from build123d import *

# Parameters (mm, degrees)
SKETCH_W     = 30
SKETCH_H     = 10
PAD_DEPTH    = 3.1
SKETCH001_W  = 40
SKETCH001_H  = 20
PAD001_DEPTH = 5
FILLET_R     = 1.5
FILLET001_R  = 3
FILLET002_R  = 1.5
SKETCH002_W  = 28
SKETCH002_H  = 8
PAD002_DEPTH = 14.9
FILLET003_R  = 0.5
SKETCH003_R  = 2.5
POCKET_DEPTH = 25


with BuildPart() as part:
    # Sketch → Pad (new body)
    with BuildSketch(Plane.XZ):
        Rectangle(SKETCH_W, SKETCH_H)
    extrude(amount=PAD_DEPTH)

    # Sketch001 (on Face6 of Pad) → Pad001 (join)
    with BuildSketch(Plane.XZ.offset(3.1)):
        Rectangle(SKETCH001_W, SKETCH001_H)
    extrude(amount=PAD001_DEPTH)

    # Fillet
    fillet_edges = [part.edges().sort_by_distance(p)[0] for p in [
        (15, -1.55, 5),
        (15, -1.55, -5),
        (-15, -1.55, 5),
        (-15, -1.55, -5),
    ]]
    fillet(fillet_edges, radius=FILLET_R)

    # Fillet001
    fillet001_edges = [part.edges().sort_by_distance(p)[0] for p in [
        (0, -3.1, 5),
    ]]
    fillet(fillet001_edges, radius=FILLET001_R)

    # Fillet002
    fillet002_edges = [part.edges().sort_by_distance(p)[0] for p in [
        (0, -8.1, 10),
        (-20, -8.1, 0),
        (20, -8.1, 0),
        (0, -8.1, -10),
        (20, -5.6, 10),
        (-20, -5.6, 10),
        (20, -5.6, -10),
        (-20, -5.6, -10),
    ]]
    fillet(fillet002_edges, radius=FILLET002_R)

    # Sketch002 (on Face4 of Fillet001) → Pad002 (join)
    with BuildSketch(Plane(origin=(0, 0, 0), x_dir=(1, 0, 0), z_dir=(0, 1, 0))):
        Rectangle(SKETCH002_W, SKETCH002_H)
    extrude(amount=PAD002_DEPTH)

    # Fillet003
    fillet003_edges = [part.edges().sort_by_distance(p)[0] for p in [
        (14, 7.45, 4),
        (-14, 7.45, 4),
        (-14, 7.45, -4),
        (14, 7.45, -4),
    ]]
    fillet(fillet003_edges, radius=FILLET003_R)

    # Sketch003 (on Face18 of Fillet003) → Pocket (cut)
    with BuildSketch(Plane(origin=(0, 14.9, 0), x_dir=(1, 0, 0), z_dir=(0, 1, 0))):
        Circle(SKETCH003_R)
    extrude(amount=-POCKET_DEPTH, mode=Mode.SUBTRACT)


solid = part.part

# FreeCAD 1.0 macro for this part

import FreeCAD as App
import Part
import Sketcher


def edges_at(feature, points):
    """Names of the edges that pass closest to the given points."""
    edges = feature.Shape.Edges
    near = lambda p: min(range(len(edges)), key=lambda i: edges[i].distToShape(Part.Vertex(*p))[0])
    return sorted({f"Edge{near(p) + 1}" for p in points})

doc = App.newDocument("Part")
body = doc.addObject("PartDesign::Body", "Body")

sketch1 = doc.addObject("Sketcher::SketchObject", "Sketch")
body.addObject(sketch1)
sketch1.AttachmentSupport = (doc.XZ_Plane, [""])
sketch1.MapMode = "FlatFace"
sketch1.addGeometry(Part.LineSegment(App.Vector(-15, 5, 0), App.Vector(-15, -5, 0)), False)
sketch1.addGeometry(Part.LineSegment(App.Vector(-15, -5, 0), App.Vector(15, -5, 0)), False)
sketch1.addGeometry(Part.LineSegment(App.Vector(15, -5, 0), App.Vector(15, 5, 0)), False)
sketch1.addGeometry(Part.LineSegment(App.Vector(15, 5, 0), App.Vector(-15, 5, 0)), False)
sketch1.addConstraint(Sketcher.Constraint("Coincident", 0, 2, 1, 1))
sketch1.addConstraint(Sketcher.Constraint("Coincident", 1, 2, 2, 1))
sketch1.addConstraint(Sketcher.Constraint("Coincident", 2, 2, 3, 1))
sketch1.addConstraint(Sketcher.Constraint("Coincident", 3, 2, 0, 1))
sketch1.addConstraint(Sketcher.Constraint("Vertical", 0))
sketch1.addConstraint(Sketcher.Constraint("Horizontal", 1))
sketch1.addConstraint(Sketcher.Constraint("Vertical", 2))
sketch1.addConstraint(Sketcher.Constraint("Horizontal", 3))
sketch1.addConstraint(Sketcher.Constraint("Symmetric", 0, 2, 2, 2, -1, 1))
sketch1.addConstraint(Sketcher.Constraint("DistanceX", 1, 1, 1, 2, 30.0))
sketch1.addConstraint(Sketcher.Constraint("DistanceY", 0, 2, 0, 1, 10.0))
pad1 = doc.addObject("PartDesign::Pad", "Pad")
body.addObject(pad1)
pad1.Profile = sketch1
pad1.Length = 3.1

sketch2 = doc.addObject("Sketcher::SketchObject", "Sketch001")
body.addObject(sketch2)
sketch2.AttachmentSupport = (doc.XZ_Plane, [""])
sketch2.MapMode = "FlatFace"
sketch2.AttachmentOffset = App.Placement(App.Vector(0, 0, 3.1), App.Rotation())
sketch2.addGeometry(Part.LineSegment(App.Vector(-20, 10, 0), App.Vector(-20, -10, 0)), False)
sketch2.addGeometry(Part.LineSegment(App.Vector(-20, -10, 0), App.Vector(20, -10, 0)), False)
sketch2.addGeometry(Part.LineSegment(App.Vector(20, -10, 0), App.Vector(20, 10, 0)), False)
sketch2.addGeometry(Part.LineSegment(App.Vector(20, 10, 0), App.Vector(-20, 10, 0)), False)
sketch2.addConstraint(Sketcher.Constraint("Coincident", 0, 2, 1, 1))
sketch2.addConstraint(Sketcher.Constraint("Coincident", 1, 2, 2, 1))
sketch2.addConstraint(Sketcher.Constraint("Coincident", 2, 2, 3, 1))
sketch2.addConstraint(Sketcher.Constraint("Coincident", 3, 2, 0, 1))
sketch2.addConstraint(Sketcher.Constraint("Vertical", 0))
sketch2.addConstraint(Sketcher.Constraint("Horizontal", 1))
sketch2.addConstraint(Sketcher.Constraint("Vertical", 2))
sketch2.addConstraint(Sketcher.Constraint("Horizontal", 3))
sketch2.addConstraint(Sketcher.Constraint("Symmetric", 0, 2, 2, 2, -1, 1))
sketch2.addConstraint(Sketcher.Constraint("DistanceX", 1, 1, 1, 2, 40.0))
sketch2.addConstraint(Sketcher.Constraint("DistanceY", 0, 2, 0, 1, 20.0))
pad2 = doc.addObject("PartDesign::Pad", "Pad001")
body.addObject(pad2)
pad2.Profile = sketch2
pad2.Length = 5
doc.recompute()

fillet = doc.addObject("PartDesign::Fillet", "Fillet")
body.addObject(fillet)
fillet.Base = (pad2, edges_at(pad2, [
    (15, -1.55, 5),
    (15, -1.55, -5),
    (-15, -1.55, 5),
    (-15, -1.55, -5),
]))
fillet.Radius = 1.5
doc.recompute()

fillet2 = doc.addObject("PartDesign::Fillet", "Fillet001")
body.addObject(fillet2)
fillet2.Base = (fillet, edges_at(fillet, [(0, -3.1, 5)]))
fillet2.Radius = 3
doc.recompute()

fillet3 = doc.addObject("PartDesign::Fillet", "Fillet002")
body.addObject(fillet3)
fillet3.Base = (fillet2, edges_at(fillet2, [
    (0, -8.1, 10),
    (-20, -8.1, 0),
    (20, -8.1, 0),
    (0, -8.1, -10),
    (20, -5.6, 10),
    (-20, -5.6, 10),
    (20, -5.6, -10),
    (-20, -5.6, -10),
]))
fillet3.Radius = 1.5

sketch3 = doc.addObject("Sketcher::SketchObject", "Sketch002")
body.addObject(sketch3)
sketch3.AttachmentSupport = (doc.XZ_Plane, [""])
sketch3.MapMode = "FlatFace"
sketch3.addGeometry(Part.LineSegment(App.Vector(-14, -4, 0), App.Vector(-14, 4, 0)), False)
sketch3.addGeometry(Part.LineSegment(App.Vector(-14, 4, 0), App.Vector(14, 4, 0)), False)
sketch3.addGeometry(Part.LineSegment(App.Vector(14, 4, 0), App.Vector(14, -4, 0)), False)
sketch3.addGeometry(Part.LineSegment(App.Vector(14, -4, 0), App.Vector(-14, -4, 0)), False)
sketch3.addConstraint(Sketcher.Constraint("Coincident", 0, 2, 1, 1))
sketch3.addConstraint(Sketcher.Constraint("Coincident", 1, 2, 2, 1))
sketch3.addConstraint(Sketcher.Constraint("Coincident", 2, 2, 3, 1))
sketch3.addConstraint(Sketcher.Constraint("Coincident", 3, 2, 0, 1))
sketch3.addConstraint(Sketcher.Constraint("Vertical", 0))
sketch3.addConstraint(Sketcher.Constraint("Horizontal", 1))
sketch3.addConstraint(Sketcher.Constraint("Vertical", 2))
sketch3.addConstraint(Sketcher.Constraint("Horizontal", 3))
sketch3.addConstraint(Sketcher.Constraint("Symmetric", 0, 2, 2, 2, -1, 1))
sketch3.addConstraint(Sketcher.Constraint("DistanceX", 1, 1, 1, 2, 28.0))
sketch3.addConstraint(Sketcher.Constraint("DistanceY", 0, 1, 0, 2, 8.0))
pad3 = doc.addObject("PartDesign::Pad", "Pad002")
body.addObject(pad3)
pad3.Profile = sketch3
pad3.Length = 14.9
pad3.Reversed = True
doc.recompute()

fillet4 = doc.addObject("PartDesign::Fillet", "Fillet003")
body.addObject(fillet4)
fillet4.Base = (pad3, edges_at(pad3, [
    (14, 7.45, 4),
    (-14, 7.45, 4),
    (-14, 7.45, -4),
    (14, 7.45, -4),
]))
fillet4.Radius = 0.5

sketch4 = doc.addObject("Sketcher::SketchObject", "Sketch003")
body.addObject(sketch4)
sketch4.AttachmentSupport = (doc.XZ_Plane, [""])
sketch4.MapMode = "FlatFace"
sketch4.AttachmentOffset = App.Placement(App.Vector(0, 0, -14.9), App.Rotation())
sketch4.addGeometry(Part.Circle(App.Vector(0, 0, 0), App.Vector(0, 0, 1), 2.5), False)
sketch4.addConstraint(Sketcher.Constraint("Coincident", 0, 3, -1, 1))
sketch4.addConstraint(Sketcher.Constraint("Diameter", 0, 5.0))
pocket1 = doc.addObject("PartDesign::Pocket", "Pocket")
body.addObject(pocket1)
pocket1.Profile = sketch4
pocket1.Length = 25
pocket1.Reversed = True

doc.recompute()
